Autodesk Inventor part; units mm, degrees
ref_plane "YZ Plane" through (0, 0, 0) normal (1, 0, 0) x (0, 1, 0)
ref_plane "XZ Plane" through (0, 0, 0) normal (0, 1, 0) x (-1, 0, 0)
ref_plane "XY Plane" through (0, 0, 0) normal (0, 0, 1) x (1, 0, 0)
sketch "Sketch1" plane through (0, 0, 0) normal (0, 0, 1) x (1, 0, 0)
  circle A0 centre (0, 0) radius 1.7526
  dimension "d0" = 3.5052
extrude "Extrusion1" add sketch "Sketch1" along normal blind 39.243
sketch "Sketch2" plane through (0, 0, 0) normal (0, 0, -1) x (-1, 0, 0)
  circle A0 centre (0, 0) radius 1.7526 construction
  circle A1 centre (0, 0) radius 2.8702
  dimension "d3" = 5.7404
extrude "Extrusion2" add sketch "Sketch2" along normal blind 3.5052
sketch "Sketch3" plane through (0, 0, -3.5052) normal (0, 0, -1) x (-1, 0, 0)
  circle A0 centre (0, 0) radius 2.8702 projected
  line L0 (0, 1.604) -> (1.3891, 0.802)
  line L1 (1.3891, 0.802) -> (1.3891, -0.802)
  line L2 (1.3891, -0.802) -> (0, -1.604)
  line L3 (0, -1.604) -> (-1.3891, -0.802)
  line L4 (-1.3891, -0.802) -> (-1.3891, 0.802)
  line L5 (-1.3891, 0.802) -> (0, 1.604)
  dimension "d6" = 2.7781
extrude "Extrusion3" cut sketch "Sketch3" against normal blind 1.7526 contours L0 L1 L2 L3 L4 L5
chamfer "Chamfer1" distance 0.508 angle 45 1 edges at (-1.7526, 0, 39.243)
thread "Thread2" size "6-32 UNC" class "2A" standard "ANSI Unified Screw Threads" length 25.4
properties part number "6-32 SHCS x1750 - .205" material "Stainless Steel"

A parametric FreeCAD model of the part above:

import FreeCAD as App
import Part
import Sketcher
from FreeCAD import Vector
Q = App.Units.Quantity


def edges_at(feature, points):
    """Names of the edges that pass closest to the given points."""
    edges = feature.Shape.Edges
    near = lambda p: min(range(len(edges)), key=lambda i: edges[i].distToShape(Part.Vertex(*p))[0])
    return sorted({f"Edge{near(p) + 1}" for p in points})

doc = App.newDocument("Part")
params = doc.addObject("Spreadsheet::Sheet", "Params")
for row, (alias, value) in enumerate([
    ("sketch1_diameter", "0.138 in"),
    ("pad1_length", "1.545 in"),
    ("sketch2_diameter", "0.226 in"),
    ("pad2_length", "0.138 in"),
    ("pocket1_length", "0.069 in"),
    ("chamfer_size", "0.02 in"),
], start=1):
    params.set(f"A{row}", alias)
    params.set(f"B{row}", "=" + value)
    params.setAlias(f"B{row}", alias)

body = doc.addObject("PartDesign::Body", "Body")

# Sketch on XY plane
sketch1 = doc.addObject("Sketcher::SketchObject", "Sketch")
body.addObject(sketch1)
sketch1.AttachmentSupport = (doc.XY_Plane, [""])
sketch1.MapMode = "FlatFace"
sketch1.addGeometry(Part.Circle(Vector(0, 0, 0), Vector(0, 0, 1), 1.7526), False)
sketch1.addConstraint([
    Sketcher.Constraint("Coincident", 0, 3, -1, 1),
    Sketcher.Constraint("Diameter", 0, Q("0.138 in")),
])
sketch1.setExpression("Constraints[1]", "Params.sketch1_diameter")
pad1 = doc.addObject("PartDesign::Pad", "Pad")
body.addObject(pad1)
pad1.Profile = sketch1
pad1.setExpression("Length", "Params.pad1_length")

# Sketch on XY plane
sketch2 = doc.addObject("Sketcher::SketchObject", "Sketch001")
body.addObject(sketch2)
sketch2.AttachmentSupport = (doc.XY_Plane, [""])
sketch2.MapMode = "FlatFace"
sketch2.addGeometry(Part.Circle(Vector(0, 0, 0), Vector(0, 0, 1), 2.8702), False)
sketch2.addConstraint([
    Sketcher.Constraint("Coincident", 0, 3, -1, 1),
    Sketcher.Constraint("Diameter", 0, Q("0.226 in")),
])
sketch2.setExpression("Constraints[1]", "Params.sketch2_diameter")
pad2 = doc.addObject("PartDesign::Pad", "Pad001")
body.addObject(pad2)
pad2.Profile = sketch2
pad2.setExpression("Length", "Params.pad2_length")
pad2.Reversed = True

# Sketch on XY plane
sketch3 = doc.addObject("Sketcher::SketchObject", "Sketch002")
body.addObject(sketch3)
sketch3.AttachmentSupport = (doc.XY_Plane, [""])
sketch3.MapMode = "FlatFace"
sketch3.AttachmentOffset = App.Placement(Vector(0, 0, -0.138 * 25.4), App.Rotation())
sketch3.addGeometry([
    Part.LineSegment(Vector(-1.3891, 0.802, 0), Vector(0, 1.604, 0)),  # 0
    Part.LineSegment(Vector(0, 1.604, 0), Vector(1.3891, 0.802, 0)),  # 1
    Part.LineSegment(Vector(1.3891, 0.802, 0), Vector(1.3891, -0.802, 0)),  # 2
    Part.LineSegment(Vector(1.3891, -0.802, 0), Vector(0, -1.604, 0)),  # 3
    Part.LineSegment(Vector(0, -1.604, 0), Vector(-1.3891, -0.802, 0)),  # 4
    Part.LineSegment(Vector(-1.3891, -0.802, 0), Vector(-1.3891, 0.802, 0)),  # 5
], False)
sketch3.addConstraint([
    Sketcher.Constraint("Coincident", 0, 2, 1, 1),
    Sketcher.Constraint("Coincident", 1, 2, 2, 1),
    Sketcher.Constraint("Coincident", 2, 2, 3, 1),
    Sketcher.Constraint("Coincident", 3, 2, 4, 1),
    Sketcher.Constraint("Coincident", 4, 2, 5, 1),
    Sketcher.Constraint("Coincident", 5, 2, 0, 1),
    Sketcher.Constraint("Vertical", 2),
    Sketcher.Constraint("Vertical", 5),
    Sketcher.Constraint("Symmetric", 0, 2, 3, 2, -1, 1),
    Sketcher.Constraint("Symmetric", 1, 2, 4, 2, -1, 1),
    Sketcher.Constraint("PointOnObject", 0, 2, -2),
    Sketcher.Constraint("Parallel", 0, 3),
    Sketcher.Constraint("Horizontal", 2, 2, 4, 2),
    Sketcher.Constraint("Angle", 0, Q("30 deg")),
    Sketcher.Constraint("DistanceX", 4, 2, 2, 2, Q("0.109378 in")),
    Sketcher.Constraint("DistanceY", 2, 2, 2, 1, Q("1.604 mm")),
])
pocket1 = doc.addObject("PartDesign::Pocket", "Pocket")
body.addObject(pocket1)
pocket1.Profile = sketch3
pocket1.setExpression("Length", "Params.pocket1_length")
pocket1.Reversed = True
doc.recompute()

chamfer = doc.addObject("PartDesign::Chamfer", "Chamfer")
body.addObject(chamfer)
chamfer.Base = (pocket1, edges_at(pocket1, [(-1.753, 0, 39.243)]))
chamfer.setExpression("Size", "Params.chamfer_size")

doc.recompute()
